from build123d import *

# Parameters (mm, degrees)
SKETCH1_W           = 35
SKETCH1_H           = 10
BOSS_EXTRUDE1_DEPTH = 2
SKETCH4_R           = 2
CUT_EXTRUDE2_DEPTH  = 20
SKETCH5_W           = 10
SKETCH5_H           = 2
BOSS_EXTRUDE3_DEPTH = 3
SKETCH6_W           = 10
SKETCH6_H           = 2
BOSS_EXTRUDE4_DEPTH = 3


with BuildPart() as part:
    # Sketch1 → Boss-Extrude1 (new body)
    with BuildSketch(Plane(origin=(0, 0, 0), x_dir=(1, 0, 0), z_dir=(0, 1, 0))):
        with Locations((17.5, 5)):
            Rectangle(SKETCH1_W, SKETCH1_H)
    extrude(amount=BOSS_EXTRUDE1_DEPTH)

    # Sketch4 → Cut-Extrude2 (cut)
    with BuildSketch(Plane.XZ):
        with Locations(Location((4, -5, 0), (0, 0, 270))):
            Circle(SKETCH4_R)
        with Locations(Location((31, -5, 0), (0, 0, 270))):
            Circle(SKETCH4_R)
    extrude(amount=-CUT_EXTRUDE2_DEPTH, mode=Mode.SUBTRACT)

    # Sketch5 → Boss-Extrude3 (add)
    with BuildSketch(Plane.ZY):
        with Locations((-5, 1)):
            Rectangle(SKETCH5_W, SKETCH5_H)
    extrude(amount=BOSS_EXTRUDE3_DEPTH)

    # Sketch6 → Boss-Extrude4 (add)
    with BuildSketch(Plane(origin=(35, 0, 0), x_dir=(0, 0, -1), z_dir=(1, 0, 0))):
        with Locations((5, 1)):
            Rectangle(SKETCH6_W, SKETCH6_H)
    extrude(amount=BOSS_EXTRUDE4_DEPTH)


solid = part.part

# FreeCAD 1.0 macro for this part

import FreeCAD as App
import Part
import Sketcher

doc = App.newDocument("Part")
body = doc.addObject("PartDesign::Body", "Body")

# Sketch on XZ plane
sketch1 = body.newObject("Sketcher::SketchObject", "Sketch")
sketch1.AttachmentSupport = (doc.getObject("XZ_Plane"), [""])
sketch1.MapMode = "FlatFace"
sketch1.addGeometry([
    Part.LineSegment(App.Vector(0, -10, 0), App.Vector(0, 0, 0)),
    Part.LineSegment(App.Vector(0, 0, 0), App.Vector(35, 0, 0)),
    Part.LineSegment(App.Vector(35, 0, 0), App.Vector(35, -10, 0)),
    Part.LineSegment(App.Vector(35, -10, 0), App.Vector(0, -10, 0)),
], False)
sketch1.addConstraint([
    Sketcher.Constraint("Coincident", 0, 2, 1, 1),
    Sketcher.Constraint("Coincident", 1, 2, 2, 1),
    Sketcher.Constraint("Coincident", 2, 2, 3, 1),
    Sketcher.Constraint("Coincident", 3, 2, 0, 1),
    Sketcher.Constraint("Vertical", 0),
    Sketcher.Constraint("Horizontal", 1),
    Sketcher.Constraint("Vertical", 2),
    Sketcher.Constraint("Horizontal", 3),
    Sketcher.Constraint("Coincident", 0, 2, -1, 1),
    Sketcher.Constraint("DistanceX", 1, 1, 1, 2, 35.0),
    Sketcher.Constraint("DistanceY", 0, 1, 0, 2, 10.0),
])
pad1 = body.newObject("PartDesign::Pad", "Pad")
pad1.Profile = sketch1
pad1.Length = 2
pad1.Reversed = True

# Sketch on XZ plane
sketch2 = body.newObject("Sketcher::SketchObject", "Sketch001")
sketch2.AttachmentSupport = (doc.getObject("XZ_Plane"), [""])
sketch2.MapMode = "FlatFace"
sketch2.addGeometry([
    Part.Circle(App.Vector(4, -5, 0), App.Vector(0, 0, 1), 2),
    Part.Circle(App.Vector(31, -5, 0), App.Vector(0, 0, 1), 2),
], False)
sketch2.addConstraint([
    Sketcher.Constraint("Equal", 0, 1),
    Sketcher.Constraint("Horizontal", 0, 3, 1, 3),
    Sketcher.Constraint("Diameter", 0, 4.0),
    Sketcher.Constraint("DistanceX", -1, 1, 0, 3, 4.0),
    Sketcher.Constraint("DistanceY", 0, 3, -1, 1, 5.0),
    Sketcher.Constraint("DistanceX", -1, 1, 1, 3, 31.0),
])
pocket1 = body.newObject("PartDesign::Pocket", "Pocket")
pocket1.Profile = sketch2
pocket1.Length = 20

# Sketch on YZ plane
sketch3 = body.newObject("Sketcher::SketchObject", "Sketch002")
sketch3.AttachmentSupport = (doc.getObject("YZ_Plane"), [""])
sketch3.MapMode = "FlatFace"
sketch3.addGeometry([
    Part.LineSegment(App.Vector(2, -10, 0), App.Vector(0, -10, 0)),
    Part.LineSegment(App.Vector(0, -10, 0), App.Vector(0, 0, 0)),
    Part.LineSegment(App.Vector(0, 0, 0), App.Vector(2, 0, 0)),
    Part.LineSegment(App.Vector(2, 0, 0), App.Vector(2, -10, 0)),
], False)
sketch3.addConstraint([
    Sketcher.Constraint("Coincident", 0, 2, 1, 1),
    Sketcher.Constraint("Coincident", 1, 2, 2, 1),
    Sketcher.Constraint("Coincident", 2, 2, 3, 1),
    Sketcher.Constraint("Coincident", 3, 2, 0, 1),
    Sketcher.Constraint("Horizontal", 0),
    Sketcher.Constraint("Vertical", 1),
    Sketcher.Constraint("Horizontal", 2),
    Sketcher.Constraint("Vertical", 3),
    Sketcher.Constraint("Coincident", 1, 2, -1, 1),
    Sketcher.Constraint("DistanceX", 0, 2, 0, 1, 2.0),
    Sketcher.Constraint("DistanceY", 1, 1, 1, 2, 10.0),
])
pad2 = body.newObject("PartDesign::Pad", "Pad001")
pad2.Profile = sketch3
pad2.Length = 3
pad2.Reversed = True

# Sketch on YZ plane
sketch4 = body.newObject("Sketcher::SketchObject", "Sketch003")
sketch4.AttachmentSupport = (doc.getObject("YZ_Plane"), [""])
sketch4.MapMode = "FlatFace"
sketch4.AttachmentOffset = App.Placement(App.Vector(0, 0, 35), App.Rotation())
sketch4.addGeometry([
    Part.LineSegment(App.Vector(2, 0, 0), App.Vector(0, 0, 0)),
    Part.LineSegment(App.Vector(0, 0, 0), App.Vector(0, -10, 0)),
    Part.LineSegment(App.Vector(0, -10, 0), App.Vector(2, -10, 0)),
    Part.LineSegment(App.Vector(2, -10, 0), App.Vector(2, 0, 0)),
], False)
sketch4.addConstraint([
    Sketcher.Constraint("Coincident", 0, 2, 1, 1),
    Sketcher.Constraint("Coincident", 1, 2, 2, 1),
    Sketcher.Constraint("Coincident", 2, 2, 3, 1),
    Sketcher.Constraint("Coincident", 3, 2, 0, 1),
    Sketcher.Constraint("Horizontal", 0),
    Sketcher.Constraint("Vertical", 1),
    Sketcher.Constraint("Horizontal", 2),
    Sketcher.Constraint("Vertical", 3),
    Sketcher.Constraint("Coincident", 0, 2, -1, 1),
    Sketcher.Constraint("DistanceX", 0, 2, 0, 1, 2.0),
    Sketcher.Constraint("DistanceY", 1, 2, 1, 1, 10.0),
])
pad3 = body.newObject("PartDesign::Pad", "Pad002")
pad3.Profile = sketch4
pad3.Length = 3

doc.recompute()
